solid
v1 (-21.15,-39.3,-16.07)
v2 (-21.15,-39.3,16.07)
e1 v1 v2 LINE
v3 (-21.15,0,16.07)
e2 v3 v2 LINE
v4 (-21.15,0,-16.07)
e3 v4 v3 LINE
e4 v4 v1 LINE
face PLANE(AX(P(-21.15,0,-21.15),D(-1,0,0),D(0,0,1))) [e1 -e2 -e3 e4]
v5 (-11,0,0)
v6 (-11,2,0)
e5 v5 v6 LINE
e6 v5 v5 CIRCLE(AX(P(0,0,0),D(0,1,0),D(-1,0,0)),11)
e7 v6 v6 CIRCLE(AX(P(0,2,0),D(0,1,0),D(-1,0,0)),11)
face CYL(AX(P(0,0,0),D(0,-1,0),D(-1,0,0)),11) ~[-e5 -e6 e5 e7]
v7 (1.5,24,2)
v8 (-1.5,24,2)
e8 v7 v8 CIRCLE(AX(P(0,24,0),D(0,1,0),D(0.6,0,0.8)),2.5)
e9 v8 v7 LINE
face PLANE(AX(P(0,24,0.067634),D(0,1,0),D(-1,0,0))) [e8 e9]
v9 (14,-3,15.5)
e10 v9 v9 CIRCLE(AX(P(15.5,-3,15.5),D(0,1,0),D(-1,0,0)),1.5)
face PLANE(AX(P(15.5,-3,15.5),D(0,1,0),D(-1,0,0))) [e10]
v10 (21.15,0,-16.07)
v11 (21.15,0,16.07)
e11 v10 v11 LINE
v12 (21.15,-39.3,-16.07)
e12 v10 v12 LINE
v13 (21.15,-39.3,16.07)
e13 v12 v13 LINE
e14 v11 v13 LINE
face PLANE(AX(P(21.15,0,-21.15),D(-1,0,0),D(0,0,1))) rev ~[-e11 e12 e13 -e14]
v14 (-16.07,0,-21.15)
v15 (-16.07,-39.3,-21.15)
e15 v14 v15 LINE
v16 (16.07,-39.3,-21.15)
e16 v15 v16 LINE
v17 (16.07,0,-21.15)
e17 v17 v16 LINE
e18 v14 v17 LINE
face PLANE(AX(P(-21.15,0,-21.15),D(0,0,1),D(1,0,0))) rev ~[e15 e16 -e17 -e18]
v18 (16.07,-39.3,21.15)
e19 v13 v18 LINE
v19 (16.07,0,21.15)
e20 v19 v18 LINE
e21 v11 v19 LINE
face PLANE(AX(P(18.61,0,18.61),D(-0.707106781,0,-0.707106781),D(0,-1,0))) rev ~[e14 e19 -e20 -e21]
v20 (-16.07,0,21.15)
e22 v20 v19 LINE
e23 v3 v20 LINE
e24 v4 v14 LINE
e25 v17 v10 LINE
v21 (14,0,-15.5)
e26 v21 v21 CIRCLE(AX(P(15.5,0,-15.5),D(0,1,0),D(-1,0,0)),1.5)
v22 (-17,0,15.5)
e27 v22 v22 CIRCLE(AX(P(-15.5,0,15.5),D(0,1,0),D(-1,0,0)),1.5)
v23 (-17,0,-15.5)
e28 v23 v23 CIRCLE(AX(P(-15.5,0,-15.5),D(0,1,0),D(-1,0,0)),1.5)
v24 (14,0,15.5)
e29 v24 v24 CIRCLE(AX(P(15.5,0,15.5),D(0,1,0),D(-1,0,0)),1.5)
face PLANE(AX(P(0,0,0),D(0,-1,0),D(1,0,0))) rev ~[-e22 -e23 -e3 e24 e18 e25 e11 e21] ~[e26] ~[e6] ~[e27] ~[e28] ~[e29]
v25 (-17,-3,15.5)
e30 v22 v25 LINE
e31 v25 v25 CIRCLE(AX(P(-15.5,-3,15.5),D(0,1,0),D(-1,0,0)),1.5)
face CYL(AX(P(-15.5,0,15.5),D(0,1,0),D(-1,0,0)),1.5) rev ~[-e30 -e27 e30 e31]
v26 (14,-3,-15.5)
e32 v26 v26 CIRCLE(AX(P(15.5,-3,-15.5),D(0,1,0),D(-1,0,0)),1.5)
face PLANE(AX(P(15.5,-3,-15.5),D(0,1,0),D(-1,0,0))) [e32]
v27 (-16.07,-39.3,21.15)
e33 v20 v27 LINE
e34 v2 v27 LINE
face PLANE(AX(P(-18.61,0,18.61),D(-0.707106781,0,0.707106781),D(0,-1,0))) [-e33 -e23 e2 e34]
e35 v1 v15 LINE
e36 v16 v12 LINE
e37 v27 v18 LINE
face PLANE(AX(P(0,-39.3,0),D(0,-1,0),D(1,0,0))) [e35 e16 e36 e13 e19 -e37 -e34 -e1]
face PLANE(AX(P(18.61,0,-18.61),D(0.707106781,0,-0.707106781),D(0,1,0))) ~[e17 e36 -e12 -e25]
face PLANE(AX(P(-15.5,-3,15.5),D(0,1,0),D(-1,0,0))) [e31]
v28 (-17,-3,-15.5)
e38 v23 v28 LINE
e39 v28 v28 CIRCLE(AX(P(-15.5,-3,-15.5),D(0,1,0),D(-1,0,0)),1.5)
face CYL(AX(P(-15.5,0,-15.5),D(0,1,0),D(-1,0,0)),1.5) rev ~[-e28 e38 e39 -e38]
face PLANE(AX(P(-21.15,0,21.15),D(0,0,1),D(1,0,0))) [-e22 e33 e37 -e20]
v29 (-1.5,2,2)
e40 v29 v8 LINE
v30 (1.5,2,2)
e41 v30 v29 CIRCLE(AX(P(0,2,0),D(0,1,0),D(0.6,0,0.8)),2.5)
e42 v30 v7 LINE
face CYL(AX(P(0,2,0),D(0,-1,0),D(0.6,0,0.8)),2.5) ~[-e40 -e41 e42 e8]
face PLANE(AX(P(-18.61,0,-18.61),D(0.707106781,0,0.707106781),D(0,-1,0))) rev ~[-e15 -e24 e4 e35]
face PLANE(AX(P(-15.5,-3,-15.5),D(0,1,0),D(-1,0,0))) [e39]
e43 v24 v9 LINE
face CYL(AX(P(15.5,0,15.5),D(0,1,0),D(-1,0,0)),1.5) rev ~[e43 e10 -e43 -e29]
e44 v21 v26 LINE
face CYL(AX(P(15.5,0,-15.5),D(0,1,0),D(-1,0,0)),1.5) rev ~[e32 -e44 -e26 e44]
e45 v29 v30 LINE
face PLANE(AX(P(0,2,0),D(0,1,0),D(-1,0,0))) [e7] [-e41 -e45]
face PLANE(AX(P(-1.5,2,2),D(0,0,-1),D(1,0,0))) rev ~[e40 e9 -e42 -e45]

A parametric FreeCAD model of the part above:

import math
import FreeCAD as App
import Part
import Sketcher
from FreeCAD import Vector
Q = App.Units.Quantity


def edges_at(feature, points):
    """Names of the edges that pass closest to the given points."""
    edges = feature.Shape.Edges
    near = lambda p: min(range(len(edges)), key=lambda i: edges[i].distToShape(Part.Vertex(*p))[0])
    return sorted({f"Edge{near(p) + 1}" for p in points})

doc = App.newDocument("Part")
body = doc.addObject("PartDesign::Body", "Body")

sketch1 = doc.addObject("Sketcher::SketchObject", "Sketch")
body.addObject(sketch1)
sketch1.AttachmentSupport = (doc.XZ_Plane, [""])
sketch1.MapMode = "FlatFace"
sketch1.addGeometry(Part.LineSegment(Vector(-21, 21, 0), Vector(-21, -21, 0)), False)
sketch1.addGeometry(Part.LineSegment(Vector(-21, -21, 0), Vector(21, -21, 0)), False)
sketch1.addGeometry(Part.LineSegment(Vector(21, -21, 0), Vector(21, 21, 0)), False)
sketch1.addGeometry(Part.LineSegment(Vector(21, 21, 0), Vector(-21, 21, 0)), False)
sketch1.addConstraint(Sketcher.Constraint("Coincident", 0, 2, 1, 1))
sketch1.addConstraint(Sketcher.Constraint("Coincident", 1, 2, 2, 1))
sketch1.addConstraint(Sketcher.Constraint("Coincident", 2, 2, 3, 1))
sketch1.addConstraint(Sketcher.Constraint("Coincident", 3, 2, 0, 1))
sketch1.addConstraint(Sketcher.Constraint("Vertical", 0))
sketch1.addConstraint(Sketcher.Constraint("Horizontal", 1))
sketch1.addConstraint(Sketcher.Constraint("Vertical", 2))
sketch1.addConstraint(Sketcher.Constraint("Horizontal", 3))
sketch1.addConstraint(Sketcher.Constraint("Symmetric", 0, 2, 2, 2, -1, 1))
sketch1.addConstraint(Sketcher.Constraint("Equal", 3, 0))
sketch1.addConstraint(Sketcher.Constraint("DistanceX", 1, 1, 1, 2, Q("42.3 mm")))
pad1 = doc.addObject("PartDesign::Pad", "Pad")
body.addObject(pad1)
pad1.Profile = sketch1
pad1.Length = 39.3
doc.recompute()

chamfer = doc.addObject("PartDesign::Chamfer", "Chamfer")
body.addObject(chamfer)
chamfer.Base = (pad1, edges_at(pad1, [
    (-21.15, -19.65, 21.15),
    (21.15, -19.65, 21.15),
    (21.15, -19.65, -21.15),
    (-21.15, -19.65, -21.15),
]))
chamfer.Size = 5.08

sketch2 = doc.addObject("Sketcher::SketchObject", "Sketch001")
body.addObject(sketch2)
sketch2.AttachmentSupport = (doc.XZ_Plane, [""])
sketch2.MapMode = "FlatFace"
sketch2.addGeometry(Part.Circle(Vector(15.5, 15.5, 0), Vector(0, 0, 1), 1.5), False)
sketch2.addGeometry(Part.Circle(Vector(-15.5, 15.5, 0), Vector(0, 0, 1), 1.5), False)
sketch2.addGeometry(Part.Circle(Vector(-15.5, -15.5, 0), Vector(0, 0, 1), 1.5), False)
sketch2.addGeometry(Part.Circle(Vector(15.5, -15.5, 0), Vector(0, 0, 1), 1.5), False)
sketch2.addConstraint(Sketcher.Constraint("Equal", 0, 1))
sketch2.addConstraint(Sketcher.Constraint("Equal", 1, 2))
sketch2.addConstraint(Sketcher.Constraint("Equal", 2, 3))
sketch2.addConstraint(Sketcher.Constraint("Symmetric", 0, 3, 2, 3, -1, 1))
sketch2.addConstraint(Sketcher.Constraint("Symmetric", 1, 3, 3, 3, -1, 1))
sketch2.addConstraint(Sketcher.Constraint("Symmetric", 0, 3, 1, 3, -2))
sketch2.addConstraint(Sketcher.Constraint("Diameter", 0, Q("3 mm")))
sketch2.addConstraint(Sketcher.Constraint("DistanceX", 1, 3, 0, 3, Q("31 mm")))
sketch2.addConstraint(Sketcher.Constraint("DistanceY", 2, 3, 1, 3, Q("31 mm")))
pocket1 = doc.addObject("PartDesign::Pocket", "Pocket")
body.addObject(pocket1)
pocket1.Profile = sketch2
pocket1.Length = 3
pocket1.Reversed = True

sketch3 = doc.addObject("Sketcher::SketchObject", "Sketch002")
body.addObject(sketch3)
sketch3.AttachmentSupport = (doc.XZ_Plane, [""])
sketch3.MapMode = "FlatFace"
sketch3.addGeometry(Part.Circle(Vector(0, 0, 0), Vector(0, 0, 1), 11), False)
sketch3.addConstraint(Sketcher.Constraint("Coincident", 0, 3, -1, 1))
sketch3.addConstraint(Sketcher.Constraint("Diameter", 0, Q("22 mm")))
pad2 = doc.addObject("PartDesign::Pad", "Pad001")
body.addObject(pad2)
pad2.Profile = sketch3
pad2.Length = 2
pad2.Reversed = True

sketch4 = doc.addObject("Sketcher::SketchObject", "Sketch003")
body.addObject(sketch4)
sketch4.AttachmentSupport = (doc.XZ_Plane, [""])
sketch4.MapMode = "FlatFace"
sketch4.AttachmentOffset = App.Placement(Vector(0, 0, -2), App.Rotation())
sketch4.addGeometry(Part.LineSegment(Vector(-1.5, 2, 0), Vector(1.5, 2, 0)), False)
sketch4.addGeometry(Part.ArcOfCircle(Part.Circle(Vector(0, 0, 0), Vector(0, 0, 1), 2.5), math.radians(127), math.radians(413)), False)
sketch4.addConstraint(Sketcher.Constraint("Coincident", 0, 1, 1, 1))
sketch4.addConstraint(Sketcher.Constraint("Coincident", 1, 2, 0, 2))
sketch4.addConstraint(Sketcher.Constraint("Horizontal", 0))
sketch4.addConstraint(Sketcher.Constraint("Coincident", 1, 3, -1, 1))
sketch4.addConstraint(Sketcher.Constraint("Radius", 1, Q("2.5 mm")))
sketch4.addConstraint(Sketcher.Constraint("DistanceX", 0, 1, 0, 2, Q("3 mm")))
pad3 = doc.addObject("PartDesign::Pad", "Pad002")
body.addObject(pad3)
pad3.Profile = sketch4
pad3.Length = 22
pad3.Reversed = True

doc.recompute()
